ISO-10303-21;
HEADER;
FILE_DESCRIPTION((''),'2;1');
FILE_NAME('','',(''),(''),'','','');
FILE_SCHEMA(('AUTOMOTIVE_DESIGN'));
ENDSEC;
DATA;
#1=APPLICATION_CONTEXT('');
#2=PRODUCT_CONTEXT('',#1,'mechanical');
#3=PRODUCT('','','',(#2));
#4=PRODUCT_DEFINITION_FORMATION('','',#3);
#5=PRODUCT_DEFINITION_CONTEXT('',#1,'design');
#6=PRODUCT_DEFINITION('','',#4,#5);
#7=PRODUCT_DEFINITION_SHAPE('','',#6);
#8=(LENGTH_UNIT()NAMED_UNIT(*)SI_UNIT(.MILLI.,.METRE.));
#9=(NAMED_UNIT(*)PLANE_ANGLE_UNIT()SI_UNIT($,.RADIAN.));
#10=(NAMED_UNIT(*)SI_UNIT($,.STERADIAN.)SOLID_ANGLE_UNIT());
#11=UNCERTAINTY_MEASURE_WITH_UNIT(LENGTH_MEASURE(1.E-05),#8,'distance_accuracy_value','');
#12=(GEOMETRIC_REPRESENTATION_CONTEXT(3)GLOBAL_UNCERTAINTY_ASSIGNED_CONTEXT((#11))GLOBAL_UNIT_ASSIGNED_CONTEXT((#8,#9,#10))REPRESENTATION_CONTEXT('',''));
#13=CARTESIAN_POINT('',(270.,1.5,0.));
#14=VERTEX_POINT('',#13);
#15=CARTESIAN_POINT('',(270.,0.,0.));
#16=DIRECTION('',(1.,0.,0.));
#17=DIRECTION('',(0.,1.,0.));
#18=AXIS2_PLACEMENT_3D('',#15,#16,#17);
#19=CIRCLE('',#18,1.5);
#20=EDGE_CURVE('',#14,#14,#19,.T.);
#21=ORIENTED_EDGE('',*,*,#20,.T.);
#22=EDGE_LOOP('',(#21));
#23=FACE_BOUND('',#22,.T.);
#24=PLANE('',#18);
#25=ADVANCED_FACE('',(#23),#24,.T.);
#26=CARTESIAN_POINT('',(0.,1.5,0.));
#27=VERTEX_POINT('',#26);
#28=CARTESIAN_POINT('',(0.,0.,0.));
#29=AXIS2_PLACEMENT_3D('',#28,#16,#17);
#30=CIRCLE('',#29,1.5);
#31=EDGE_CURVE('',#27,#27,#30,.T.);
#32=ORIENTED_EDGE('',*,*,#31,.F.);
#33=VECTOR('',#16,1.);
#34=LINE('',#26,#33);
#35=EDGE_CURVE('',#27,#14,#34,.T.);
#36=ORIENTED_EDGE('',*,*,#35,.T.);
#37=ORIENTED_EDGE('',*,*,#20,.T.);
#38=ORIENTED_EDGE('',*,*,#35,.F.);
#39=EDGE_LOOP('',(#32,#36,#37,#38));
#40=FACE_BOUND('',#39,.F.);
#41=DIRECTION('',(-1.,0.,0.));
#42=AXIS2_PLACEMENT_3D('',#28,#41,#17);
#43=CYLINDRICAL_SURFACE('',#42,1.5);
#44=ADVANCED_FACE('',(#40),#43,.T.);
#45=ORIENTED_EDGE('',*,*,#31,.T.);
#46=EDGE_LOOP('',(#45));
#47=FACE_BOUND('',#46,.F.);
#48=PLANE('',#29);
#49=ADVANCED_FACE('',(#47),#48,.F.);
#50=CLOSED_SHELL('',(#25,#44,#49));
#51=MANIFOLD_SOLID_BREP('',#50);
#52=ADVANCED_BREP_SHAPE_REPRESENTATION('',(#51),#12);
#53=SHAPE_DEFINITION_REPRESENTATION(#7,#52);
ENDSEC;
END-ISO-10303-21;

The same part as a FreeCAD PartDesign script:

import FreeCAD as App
import Part
import Sketcher
Q = App.Units.Quantity

doc = App.newDocument("Part")
body = doc.addObject("PartDesign::Body", "Body")

sketch1 = body.newObject("Sketcher::SketchObject", "Sketch")
sketch1.AttachmentSupport = (doc.getObject("YZ_Plane"), [""])
sketch1.MapMode = "FlatFace"
sketch1.addGeometry(Part.Circle(App.Vector(0, 0, 0), App.Vector(0, 0, 1), 1.5), False)
sketch1.addConstraint([
    Sketcher.Constraint("Coincident", 0, 3, -1, 1),
    Sketcher.Constraint("Diameter", 0, Q("3 mm")),
])
pad1 = body.newObject("PartDesign::Pad", "Pad")
pad1.Profile = sketch1
pad1.Length = 270

doc.recompute()
